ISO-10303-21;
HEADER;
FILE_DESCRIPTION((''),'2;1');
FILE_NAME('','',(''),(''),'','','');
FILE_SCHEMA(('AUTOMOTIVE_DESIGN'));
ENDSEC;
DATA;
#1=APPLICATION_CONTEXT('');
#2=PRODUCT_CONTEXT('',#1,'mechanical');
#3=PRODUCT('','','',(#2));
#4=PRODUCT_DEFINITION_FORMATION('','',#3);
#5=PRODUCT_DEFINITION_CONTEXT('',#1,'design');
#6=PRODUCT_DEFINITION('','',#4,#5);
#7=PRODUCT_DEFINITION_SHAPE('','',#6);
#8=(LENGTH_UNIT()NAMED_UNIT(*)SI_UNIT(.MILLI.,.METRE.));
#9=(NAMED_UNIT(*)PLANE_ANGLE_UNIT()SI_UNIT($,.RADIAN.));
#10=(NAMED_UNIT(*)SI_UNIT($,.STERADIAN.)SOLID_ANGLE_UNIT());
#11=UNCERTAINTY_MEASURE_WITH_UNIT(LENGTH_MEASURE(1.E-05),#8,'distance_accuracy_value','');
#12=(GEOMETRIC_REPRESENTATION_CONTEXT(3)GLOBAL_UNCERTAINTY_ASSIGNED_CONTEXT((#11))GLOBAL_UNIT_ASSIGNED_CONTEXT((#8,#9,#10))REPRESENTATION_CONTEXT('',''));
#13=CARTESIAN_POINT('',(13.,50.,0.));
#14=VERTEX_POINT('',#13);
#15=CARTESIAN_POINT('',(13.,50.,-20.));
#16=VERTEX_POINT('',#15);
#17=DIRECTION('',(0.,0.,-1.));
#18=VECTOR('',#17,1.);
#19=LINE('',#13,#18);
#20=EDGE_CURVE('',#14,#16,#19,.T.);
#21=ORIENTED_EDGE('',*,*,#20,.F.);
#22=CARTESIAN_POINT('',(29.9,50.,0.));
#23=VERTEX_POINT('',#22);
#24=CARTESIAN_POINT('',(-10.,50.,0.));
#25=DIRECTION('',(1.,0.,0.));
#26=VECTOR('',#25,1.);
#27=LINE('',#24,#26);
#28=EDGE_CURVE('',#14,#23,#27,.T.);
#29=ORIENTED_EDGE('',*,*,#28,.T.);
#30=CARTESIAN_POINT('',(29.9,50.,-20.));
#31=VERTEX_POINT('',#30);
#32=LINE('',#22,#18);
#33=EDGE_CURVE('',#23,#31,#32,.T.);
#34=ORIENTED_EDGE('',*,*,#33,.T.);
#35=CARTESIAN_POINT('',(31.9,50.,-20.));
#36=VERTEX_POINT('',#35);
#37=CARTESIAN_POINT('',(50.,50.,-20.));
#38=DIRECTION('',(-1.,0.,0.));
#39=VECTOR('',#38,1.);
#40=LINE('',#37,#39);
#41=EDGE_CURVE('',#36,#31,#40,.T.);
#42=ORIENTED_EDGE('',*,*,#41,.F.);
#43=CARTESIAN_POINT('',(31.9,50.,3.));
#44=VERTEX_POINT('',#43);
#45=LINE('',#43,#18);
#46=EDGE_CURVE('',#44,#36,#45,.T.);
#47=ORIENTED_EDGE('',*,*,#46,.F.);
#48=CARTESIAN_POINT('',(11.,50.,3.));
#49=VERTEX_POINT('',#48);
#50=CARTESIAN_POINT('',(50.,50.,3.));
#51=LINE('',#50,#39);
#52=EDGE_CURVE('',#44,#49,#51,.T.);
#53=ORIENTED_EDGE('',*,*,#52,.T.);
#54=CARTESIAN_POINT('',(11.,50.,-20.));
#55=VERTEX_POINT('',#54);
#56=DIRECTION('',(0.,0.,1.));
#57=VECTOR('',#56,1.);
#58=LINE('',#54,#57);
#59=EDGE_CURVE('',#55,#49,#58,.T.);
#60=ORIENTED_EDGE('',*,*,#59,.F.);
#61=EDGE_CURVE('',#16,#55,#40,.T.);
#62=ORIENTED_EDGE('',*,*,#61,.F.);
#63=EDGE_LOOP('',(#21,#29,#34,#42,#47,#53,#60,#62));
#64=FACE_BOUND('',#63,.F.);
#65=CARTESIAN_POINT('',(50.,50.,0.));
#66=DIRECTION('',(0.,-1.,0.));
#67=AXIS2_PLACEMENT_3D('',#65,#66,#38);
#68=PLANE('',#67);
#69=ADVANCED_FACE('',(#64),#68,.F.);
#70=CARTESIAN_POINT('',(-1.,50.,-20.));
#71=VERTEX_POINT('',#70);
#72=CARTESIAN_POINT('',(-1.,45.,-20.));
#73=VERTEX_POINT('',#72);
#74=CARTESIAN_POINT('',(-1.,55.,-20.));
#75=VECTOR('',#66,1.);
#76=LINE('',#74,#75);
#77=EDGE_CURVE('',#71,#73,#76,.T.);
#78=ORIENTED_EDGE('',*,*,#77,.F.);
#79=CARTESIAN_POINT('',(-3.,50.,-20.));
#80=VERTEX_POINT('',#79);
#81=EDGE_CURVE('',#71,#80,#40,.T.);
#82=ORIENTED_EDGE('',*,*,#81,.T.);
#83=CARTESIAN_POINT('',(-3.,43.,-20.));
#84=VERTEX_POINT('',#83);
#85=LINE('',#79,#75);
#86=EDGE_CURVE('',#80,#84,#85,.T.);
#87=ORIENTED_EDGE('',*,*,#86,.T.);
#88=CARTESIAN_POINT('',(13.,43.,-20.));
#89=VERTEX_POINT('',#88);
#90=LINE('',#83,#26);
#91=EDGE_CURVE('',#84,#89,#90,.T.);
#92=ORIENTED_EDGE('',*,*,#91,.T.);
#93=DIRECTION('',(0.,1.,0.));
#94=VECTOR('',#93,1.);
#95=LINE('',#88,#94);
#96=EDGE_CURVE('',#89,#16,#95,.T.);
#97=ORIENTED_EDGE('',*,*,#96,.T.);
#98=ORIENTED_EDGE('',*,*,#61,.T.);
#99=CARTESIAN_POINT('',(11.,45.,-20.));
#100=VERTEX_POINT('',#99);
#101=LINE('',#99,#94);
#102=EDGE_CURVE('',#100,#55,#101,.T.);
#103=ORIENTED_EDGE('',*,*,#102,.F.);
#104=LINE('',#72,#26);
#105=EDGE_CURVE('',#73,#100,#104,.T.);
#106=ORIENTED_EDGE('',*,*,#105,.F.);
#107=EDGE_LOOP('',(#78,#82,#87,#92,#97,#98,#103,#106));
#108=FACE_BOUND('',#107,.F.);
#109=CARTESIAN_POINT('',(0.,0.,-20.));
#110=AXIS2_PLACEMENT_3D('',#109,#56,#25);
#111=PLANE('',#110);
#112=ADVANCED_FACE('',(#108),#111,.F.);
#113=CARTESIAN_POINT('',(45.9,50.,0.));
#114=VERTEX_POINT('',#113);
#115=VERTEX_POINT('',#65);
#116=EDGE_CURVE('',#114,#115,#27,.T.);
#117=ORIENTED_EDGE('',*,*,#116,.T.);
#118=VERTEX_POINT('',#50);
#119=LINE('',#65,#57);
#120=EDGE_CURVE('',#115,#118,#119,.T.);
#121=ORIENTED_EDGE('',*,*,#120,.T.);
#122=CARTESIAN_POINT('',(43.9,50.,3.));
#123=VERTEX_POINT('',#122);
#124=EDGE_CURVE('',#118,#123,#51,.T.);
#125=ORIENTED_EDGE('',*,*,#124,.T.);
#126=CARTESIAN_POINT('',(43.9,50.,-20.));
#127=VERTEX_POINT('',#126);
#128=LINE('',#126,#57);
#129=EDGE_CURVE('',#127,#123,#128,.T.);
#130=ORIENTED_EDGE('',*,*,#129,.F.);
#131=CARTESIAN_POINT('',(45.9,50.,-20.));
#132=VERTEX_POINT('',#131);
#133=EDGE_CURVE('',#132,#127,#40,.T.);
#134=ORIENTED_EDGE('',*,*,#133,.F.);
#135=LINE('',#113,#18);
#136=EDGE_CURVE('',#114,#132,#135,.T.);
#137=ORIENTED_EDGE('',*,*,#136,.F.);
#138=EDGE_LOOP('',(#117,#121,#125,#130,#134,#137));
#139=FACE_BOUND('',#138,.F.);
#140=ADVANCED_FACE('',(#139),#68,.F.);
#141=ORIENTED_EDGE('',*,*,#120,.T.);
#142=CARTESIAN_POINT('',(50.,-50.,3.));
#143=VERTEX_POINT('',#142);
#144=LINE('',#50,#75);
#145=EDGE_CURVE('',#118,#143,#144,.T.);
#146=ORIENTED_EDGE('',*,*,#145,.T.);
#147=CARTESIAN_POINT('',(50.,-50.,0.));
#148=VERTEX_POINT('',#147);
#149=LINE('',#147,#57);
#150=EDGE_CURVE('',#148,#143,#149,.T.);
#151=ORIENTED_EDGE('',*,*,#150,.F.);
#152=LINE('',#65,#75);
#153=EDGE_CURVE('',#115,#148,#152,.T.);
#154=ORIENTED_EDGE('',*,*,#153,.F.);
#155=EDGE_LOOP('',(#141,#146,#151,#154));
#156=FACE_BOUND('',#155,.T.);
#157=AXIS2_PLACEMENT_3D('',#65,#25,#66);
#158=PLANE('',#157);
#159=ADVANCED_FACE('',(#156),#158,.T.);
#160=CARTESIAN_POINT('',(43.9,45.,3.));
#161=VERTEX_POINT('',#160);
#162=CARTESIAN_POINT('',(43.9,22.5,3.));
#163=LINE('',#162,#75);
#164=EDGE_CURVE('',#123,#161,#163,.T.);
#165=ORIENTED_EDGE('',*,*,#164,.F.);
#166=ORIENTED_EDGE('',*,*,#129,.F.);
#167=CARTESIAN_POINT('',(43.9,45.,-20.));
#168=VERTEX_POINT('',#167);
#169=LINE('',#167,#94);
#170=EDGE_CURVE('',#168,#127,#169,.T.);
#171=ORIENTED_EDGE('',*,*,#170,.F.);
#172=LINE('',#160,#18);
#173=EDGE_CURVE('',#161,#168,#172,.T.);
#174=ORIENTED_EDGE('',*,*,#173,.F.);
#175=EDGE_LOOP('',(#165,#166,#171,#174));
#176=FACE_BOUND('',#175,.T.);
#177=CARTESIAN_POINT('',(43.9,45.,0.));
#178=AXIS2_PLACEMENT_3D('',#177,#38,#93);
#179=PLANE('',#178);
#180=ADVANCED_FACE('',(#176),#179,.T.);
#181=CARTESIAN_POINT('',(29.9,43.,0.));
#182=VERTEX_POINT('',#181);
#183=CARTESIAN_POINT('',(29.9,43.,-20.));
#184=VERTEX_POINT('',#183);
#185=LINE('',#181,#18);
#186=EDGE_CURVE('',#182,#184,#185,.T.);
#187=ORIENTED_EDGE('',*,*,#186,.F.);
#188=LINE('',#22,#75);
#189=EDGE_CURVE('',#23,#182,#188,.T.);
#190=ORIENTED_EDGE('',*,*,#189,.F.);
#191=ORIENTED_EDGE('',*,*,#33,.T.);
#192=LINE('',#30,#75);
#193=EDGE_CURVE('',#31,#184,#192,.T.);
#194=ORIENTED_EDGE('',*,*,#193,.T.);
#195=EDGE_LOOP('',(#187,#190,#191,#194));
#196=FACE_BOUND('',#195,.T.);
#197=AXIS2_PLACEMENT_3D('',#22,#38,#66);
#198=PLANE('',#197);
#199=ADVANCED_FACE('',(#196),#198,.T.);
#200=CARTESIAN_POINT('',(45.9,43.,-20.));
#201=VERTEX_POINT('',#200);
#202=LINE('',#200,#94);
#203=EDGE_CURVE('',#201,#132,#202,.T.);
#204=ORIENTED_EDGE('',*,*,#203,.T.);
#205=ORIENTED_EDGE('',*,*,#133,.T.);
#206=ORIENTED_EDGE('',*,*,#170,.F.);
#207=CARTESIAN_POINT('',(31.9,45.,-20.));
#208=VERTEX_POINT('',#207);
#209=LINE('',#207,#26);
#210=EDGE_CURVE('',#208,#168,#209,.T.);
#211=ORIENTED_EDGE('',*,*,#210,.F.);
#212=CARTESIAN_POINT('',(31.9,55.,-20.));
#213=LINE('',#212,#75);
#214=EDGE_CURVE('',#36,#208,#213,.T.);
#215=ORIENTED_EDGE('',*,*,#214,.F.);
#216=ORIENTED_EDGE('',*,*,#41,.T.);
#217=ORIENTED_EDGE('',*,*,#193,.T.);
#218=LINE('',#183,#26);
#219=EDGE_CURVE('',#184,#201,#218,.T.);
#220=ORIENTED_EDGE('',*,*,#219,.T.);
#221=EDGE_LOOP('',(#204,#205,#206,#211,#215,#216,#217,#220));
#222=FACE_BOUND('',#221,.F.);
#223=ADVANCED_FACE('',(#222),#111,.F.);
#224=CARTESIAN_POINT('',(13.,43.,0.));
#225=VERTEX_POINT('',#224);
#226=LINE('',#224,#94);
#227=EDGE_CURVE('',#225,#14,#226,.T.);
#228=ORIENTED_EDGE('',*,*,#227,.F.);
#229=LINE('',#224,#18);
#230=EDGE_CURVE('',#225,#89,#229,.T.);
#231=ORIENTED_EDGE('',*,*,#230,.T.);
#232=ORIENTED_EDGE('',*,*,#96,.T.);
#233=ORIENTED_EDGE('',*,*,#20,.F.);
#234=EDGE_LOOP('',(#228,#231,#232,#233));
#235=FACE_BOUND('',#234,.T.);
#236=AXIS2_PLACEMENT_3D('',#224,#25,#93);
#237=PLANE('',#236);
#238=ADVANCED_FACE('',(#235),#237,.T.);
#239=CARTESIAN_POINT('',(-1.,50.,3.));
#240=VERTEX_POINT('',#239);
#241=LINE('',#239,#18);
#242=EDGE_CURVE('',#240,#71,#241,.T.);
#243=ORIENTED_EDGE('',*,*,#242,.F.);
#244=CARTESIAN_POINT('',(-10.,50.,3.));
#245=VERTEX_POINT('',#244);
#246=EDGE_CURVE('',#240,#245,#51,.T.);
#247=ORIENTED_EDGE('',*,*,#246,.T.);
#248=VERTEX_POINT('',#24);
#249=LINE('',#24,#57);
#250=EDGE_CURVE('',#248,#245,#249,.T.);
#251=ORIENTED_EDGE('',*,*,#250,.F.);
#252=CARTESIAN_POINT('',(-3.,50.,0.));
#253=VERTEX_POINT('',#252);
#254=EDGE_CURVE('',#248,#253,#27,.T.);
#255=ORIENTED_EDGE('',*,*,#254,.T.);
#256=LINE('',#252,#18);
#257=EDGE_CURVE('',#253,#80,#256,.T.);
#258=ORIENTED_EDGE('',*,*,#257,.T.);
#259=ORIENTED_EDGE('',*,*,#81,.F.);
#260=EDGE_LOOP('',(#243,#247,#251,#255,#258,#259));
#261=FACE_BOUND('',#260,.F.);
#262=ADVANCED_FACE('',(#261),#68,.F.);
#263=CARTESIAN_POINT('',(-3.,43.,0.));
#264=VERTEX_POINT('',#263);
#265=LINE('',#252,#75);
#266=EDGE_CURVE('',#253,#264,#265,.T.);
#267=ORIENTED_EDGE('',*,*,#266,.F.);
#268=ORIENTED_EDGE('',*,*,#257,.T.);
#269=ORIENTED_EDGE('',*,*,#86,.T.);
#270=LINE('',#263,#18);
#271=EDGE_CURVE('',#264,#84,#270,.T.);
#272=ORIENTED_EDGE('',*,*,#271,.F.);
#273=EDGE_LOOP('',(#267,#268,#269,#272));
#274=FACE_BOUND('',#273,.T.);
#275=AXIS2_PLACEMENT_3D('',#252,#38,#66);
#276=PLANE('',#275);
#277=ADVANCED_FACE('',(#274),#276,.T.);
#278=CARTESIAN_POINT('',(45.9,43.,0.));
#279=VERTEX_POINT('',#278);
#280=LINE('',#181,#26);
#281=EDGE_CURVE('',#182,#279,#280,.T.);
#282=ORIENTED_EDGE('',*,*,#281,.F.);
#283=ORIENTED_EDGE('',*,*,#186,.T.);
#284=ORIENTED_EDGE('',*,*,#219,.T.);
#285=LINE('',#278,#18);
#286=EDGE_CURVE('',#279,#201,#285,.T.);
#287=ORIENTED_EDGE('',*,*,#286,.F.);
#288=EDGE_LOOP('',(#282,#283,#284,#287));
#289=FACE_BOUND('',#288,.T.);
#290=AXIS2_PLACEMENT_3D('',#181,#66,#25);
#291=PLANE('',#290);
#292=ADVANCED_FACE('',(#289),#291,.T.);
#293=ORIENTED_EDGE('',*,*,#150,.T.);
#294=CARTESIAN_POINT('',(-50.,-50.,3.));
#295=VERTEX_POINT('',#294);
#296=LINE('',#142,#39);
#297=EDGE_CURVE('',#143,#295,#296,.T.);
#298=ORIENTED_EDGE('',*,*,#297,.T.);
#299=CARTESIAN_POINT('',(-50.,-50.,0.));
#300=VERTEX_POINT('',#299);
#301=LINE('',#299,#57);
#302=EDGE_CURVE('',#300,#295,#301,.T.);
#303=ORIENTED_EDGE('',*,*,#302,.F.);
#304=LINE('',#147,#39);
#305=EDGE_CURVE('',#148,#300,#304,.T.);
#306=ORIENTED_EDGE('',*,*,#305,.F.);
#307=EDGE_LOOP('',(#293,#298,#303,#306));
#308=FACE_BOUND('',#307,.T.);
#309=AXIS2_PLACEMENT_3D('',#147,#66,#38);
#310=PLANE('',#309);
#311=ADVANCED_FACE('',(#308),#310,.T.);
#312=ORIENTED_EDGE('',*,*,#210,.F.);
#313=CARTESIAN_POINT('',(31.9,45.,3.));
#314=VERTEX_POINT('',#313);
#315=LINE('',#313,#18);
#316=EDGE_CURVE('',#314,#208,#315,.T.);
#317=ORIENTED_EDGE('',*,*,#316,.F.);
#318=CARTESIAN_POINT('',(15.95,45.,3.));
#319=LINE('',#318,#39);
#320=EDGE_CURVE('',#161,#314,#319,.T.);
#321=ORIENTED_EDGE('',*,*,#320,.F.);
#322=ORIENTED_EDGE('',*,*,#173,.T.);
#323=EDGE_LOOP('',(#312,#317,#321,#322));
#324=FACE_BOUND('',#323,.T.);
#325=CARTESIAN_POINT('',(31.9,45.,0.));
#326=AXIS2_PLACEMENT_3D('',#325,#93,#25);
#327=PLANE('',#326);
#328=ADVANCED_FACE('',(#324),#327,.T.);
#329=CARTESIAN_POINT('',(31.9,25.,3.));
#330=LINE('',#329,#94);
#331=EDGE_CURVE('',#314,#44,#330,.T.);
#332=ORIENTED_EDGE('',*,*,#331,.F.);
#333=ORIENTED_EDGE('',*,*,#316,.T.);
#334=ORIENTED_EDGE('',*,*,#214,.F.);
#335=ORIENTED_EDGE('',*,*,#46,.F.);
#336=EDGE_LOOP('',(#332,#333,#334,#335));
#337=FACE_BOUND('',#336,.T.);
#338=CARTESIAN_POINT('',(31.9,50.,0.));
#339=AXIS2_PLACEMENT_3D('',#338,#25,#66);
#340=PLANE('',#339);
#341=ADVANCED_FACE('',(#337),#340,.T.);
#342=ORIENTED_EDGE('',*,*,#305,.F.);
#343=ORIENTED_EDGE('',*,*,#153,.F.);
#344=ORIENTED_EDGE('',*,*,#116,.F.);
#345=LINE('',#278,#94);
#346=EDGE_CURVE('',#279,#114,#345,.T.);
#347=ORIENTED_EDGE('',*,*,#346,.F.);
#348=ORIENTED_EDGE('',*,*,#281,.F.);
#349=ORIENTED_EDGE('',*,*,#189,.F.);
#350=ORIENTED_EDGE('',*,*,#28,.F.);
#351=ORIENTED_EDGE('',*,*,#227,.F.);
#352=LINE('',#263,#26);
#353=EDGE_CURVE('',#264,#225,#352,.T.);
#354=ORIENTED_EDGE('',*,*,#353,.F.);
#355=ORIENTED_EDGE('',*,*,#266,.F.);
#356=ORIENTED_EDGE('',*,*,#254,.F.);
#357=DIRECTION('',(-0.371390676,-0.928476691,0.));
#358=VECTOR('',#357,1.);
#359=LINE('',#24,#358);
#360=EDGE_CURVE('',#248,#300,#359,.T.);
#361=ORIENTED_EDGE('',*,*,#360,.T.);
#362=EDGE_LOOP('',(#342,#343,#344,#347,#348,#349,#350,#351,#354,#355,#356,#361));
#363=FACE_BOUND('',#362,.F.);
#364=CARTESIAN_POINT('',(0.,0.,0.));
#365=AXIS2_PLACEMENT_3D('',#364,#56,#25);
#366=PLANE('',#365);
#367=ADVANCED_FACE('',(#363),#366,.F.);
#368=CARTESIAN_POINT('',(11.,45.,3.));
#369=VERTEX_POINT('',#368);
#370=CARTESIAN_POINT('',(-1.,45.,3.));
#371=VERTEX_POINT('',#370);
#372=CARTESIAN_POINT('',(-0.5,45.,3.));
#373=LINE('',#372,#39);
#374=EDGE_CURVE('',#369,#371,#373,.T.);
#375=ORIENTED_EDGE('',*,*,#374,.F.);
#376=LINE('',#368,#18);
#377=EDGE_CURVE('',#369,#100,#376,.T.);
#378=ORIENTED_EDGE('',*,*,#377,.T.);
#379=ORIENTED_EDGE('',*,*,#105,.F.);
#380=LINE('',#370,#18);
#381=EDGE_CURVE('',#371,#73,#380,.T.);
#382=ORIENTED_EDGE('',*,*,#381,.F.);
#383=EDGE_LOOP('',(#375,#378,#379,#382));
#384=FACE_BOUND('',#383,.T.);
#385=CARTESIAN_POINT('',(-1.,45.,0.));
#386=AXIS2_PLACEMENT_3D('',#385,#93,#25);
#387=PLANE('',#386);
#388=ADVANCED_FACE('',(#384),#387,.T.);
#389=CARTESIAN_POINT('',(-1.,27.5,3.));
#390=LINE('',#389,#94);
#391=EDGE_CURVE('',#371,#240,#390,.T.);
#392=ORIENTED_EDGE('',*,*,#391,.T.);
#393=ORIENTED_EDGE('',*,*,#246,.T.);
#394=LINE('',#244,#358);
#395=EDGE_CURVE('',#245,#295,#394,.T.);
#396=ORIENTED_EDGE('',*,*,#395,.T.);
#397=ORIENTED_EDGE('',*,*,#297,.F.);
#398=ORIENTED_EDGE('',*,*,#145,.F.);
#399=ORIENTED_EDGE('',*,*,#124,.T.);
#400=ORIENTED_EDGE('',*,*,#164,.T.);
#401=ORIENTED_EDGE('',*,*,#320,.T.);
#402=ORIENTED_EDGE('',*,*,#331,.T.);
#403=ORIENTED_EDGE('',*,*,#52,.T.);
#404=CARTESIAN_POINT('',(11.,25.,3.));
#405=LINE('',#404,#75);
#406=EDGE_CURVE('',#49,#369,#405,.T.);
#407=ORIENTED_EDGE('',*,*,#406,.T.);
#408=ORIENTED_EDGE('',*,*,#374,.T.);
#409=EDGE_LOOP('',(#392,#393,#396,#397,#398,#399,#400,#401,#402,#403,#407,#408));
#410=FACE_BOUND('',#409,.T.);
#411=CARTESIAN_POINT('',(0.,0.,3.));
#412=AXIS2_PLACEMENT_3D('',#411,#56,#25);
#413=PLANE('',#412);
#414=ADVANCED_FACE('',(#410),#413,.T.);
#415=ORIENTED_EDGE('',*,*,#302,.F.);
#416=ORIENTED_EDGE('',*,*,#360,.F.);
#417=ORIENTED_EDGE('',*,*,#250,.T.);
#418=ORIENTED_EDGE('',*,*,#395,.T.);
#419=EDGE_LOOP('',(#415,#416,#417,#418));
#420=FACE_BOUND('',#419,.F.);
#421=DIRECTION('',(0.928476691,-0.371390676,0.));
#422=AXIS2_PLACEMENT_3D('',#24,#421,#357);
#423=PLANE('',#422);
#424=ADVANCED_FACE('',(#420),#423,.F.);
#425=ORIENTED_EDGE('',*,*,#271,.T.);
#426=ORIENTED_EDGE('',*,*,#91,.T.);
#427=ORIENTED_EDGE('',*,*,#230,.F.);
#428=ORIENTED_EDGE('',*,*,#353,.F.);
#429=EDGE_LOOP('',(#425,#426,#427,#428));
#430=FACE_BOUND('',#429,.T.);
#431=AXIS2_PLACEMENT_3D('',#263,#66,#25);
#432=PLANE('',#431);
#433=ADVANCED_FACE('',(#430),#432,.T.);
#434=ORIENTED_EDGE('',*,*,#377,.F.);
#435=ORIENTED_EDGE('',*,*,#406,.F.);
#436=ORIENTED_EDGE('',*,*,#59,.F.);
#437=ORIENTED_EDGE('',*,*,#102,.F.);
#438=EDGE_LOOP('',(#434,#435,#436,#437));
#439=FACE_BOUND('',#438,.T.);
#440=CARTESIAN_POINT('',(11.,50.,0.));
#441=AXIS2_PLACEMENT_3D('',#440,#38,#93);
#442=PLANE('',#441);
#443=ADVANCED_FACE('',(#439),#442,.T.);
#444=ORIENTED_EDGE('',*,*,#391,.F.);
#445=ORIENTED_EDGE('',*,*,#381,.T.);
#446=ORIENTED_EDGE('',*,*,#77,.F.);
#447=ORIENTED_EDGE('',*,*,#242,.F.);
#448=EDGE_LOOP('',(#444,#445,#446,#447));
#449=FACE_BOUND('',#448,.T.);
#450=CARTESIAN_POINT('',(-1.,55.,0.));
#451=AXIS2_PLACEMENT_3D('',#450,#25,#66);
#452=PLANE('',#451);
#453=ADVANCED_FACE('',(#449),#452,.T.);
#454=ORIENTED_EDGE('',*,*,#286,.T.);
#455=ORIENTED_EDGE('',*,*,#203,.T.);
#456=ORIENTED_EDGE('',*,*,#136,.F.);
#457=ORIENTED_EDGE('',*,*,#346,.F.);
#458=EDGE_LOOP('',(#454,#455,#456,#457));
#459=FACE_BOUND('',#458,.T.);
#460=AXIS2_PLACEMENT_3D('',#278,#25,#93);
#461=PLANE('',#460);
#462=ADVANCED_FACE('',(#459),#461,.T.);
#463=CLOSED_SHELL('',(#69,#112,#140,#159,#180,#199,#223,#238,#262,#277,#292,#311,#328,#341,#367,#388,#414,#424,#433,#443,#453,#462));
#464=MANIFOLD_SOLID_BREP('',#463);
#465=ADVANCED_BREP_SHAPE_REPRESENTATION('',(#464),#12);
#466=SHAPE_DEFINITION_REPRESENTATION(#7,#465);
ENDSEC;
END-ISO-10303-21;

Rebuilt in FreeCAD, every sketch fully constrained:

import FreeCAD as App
import Part
import Sketcher
Q = App.Units.Quantity


def add_polygon(sketch, points):
    """Adds a closed chain of lines whose ends are joined by coincident constraints."""
    first, n = sketch.GeometryCount, len(points)
    for a, b in zip(points, points[1:] + points[:1]):
        sketch.addGeometry(Part.LineSegment(App.Vector(*a, 0), App.Vector(*b, 0)), False)
    for i in range(n):
        sketch.addConstraint(Sketcher.Constraint("Coincident", first + i, 2, first + (i + 1) % n, 1))

doc = App.newDocument("Part")
body = doc.addObject("PartDesign::Body", "Body")

# Sketch on XY plane
sketch1 = body.newObject("Sketcher::SketchObject", "Sketch")
sketch1.AttachmentSupport = (doc.getObject("XY_Plane"), [""])
sketch1.MapMode = "FlatFace"
add_polygon(sketch1, [(-50, -50), (50, -50), (50, 50), (-10, 50)])  # lines 0-3
sketch1.addConstraint([
    Sketcher.Constraint("Horizontal", 0),
    Sketcher.Constraint("Vertical", 1),
    Sketcher.Constraint("Horizontal", 2),
    Sketcher.Constraint("Symmetric", 1, 2, 3, 2, -1, 1),
    Sketcher.Constraint("Equal", 0, 1),
    Sketcher.Constraint("DistanceX", 0, 1, 0, 2, Q("100 mm")),
    Sketcher.Constraint("DistanceX", 2, 2, 2, 1, Q("60 mm")),
])
pad1 = body.newObject("PartDesign::Pad", "Pad")
pad1.Profile = sketch1
pad1.Length = 3

# Sketch on XY plane
sketch2 = body.newObject("Sketcher::SketchObject", "Sketch001")
sketch2.AttachmentSupport = (doc.getObject("XY_Plane"), [""])
sketch2.MapMode = "FlatFace"
add_polygon(sketch2, [(-1, 55), (-1, 45), (11, 45), (11, 55)])  # lines 0-3
sketch2.addConstraint([
    Sketcher.Constraint("Vertical", 0),
    Sketcher.Constraint("Horizontal", 1),
    Sketcher.Constraint("Vertical", 2),
    Sketcher.Constraint("Horizontal", 3),
    Sketcher.Constraint("DistanceX", 1, 1, 1, 2, Q("12 mm")),
    Sketcher.Constraint("DistanceY", 0, 2, 0, 1, Q("10 mm")),
    Sketcher.Constraint("DistanceX", 0, 2, -1, 1, Q("1 mm")),
    Sketcher.Constraint("DistanceY", -1, 1, 0, 2, Q("45 mm")),
])
pocket1 = body.newObject("PartDesign::Pocket", "Pocket")
pocket1.Profile = sketch2
pocket1.Length = 10
pocket1.Reversed = True

# Sketch on XY plane
sketch3 = body.newObject("Sketcher::SketchObject", "Sketch002")
sketch3.AttachmentSupport = (doc.getObject("XY_Plane"), [""])
sketch3.MapMode = "FlatFace"
add_polygon(sketch3, [(43.9, 45), (43.9, 55), (31.9, 55), (31.9, 45)])  # lines 0-3
sketch3.addConstraint([
    Sketcher.Constraint("Vertical", 0),
    Sketcher.Constraint("Horizontal", 1),
    Sketcher.Constraint("Vertical", 2),
    Sketcher.Constraint("Horizontal", 3),
    Sketcher.Constraint("DistanceX", 1, 2, 1, 1, Q("12 mm")),
    Sketcher.Constraint("DistanceY", 0, 1, 0, 2, Q("10 mm")),
    Sketcher.Constraint("DistanceY", -1, 1, 0, 2, Q("55 mm")),
    Sketcher.Constraint("DistanceX", -1, 1, 0, 2, Q("43.9 mm")),
])
pocket2 = body.newObject("PartDesign::Pocket", "Pocket001")
pocket2.Profile = sketch3
pocket2.Length = 10
pocket2.Reversed = True

# Sketch on XY plane
sketch4 = body.newObject("Sketcher::SketchObject", "Sketch003")
sketch4.AttachmentSupport = (doc.getObject("XY_Plane"), [""])
sketch4.MapMode = "FlatFace"
add_polygon(sketch4, [(45.9, 43), (45.9, 50), (43.9, 50), (43.9, 45), (31.9, 45), (31.9, 50), (29.9, 50), (29.9, 43)])  # lines 0-7
add_polygon(sketch4, [(-1, 50), (-3, 50), (-3, 43), (13, 43), (13, 50), (11, 50), (11, 45), (-1, 45)])  # lines 8-15
sketch4.addConstraint([
    Sketcher.Constraint("Vertical", 0),
    Sketcher.Constraint("Horizontal", 1),
    Sketcher.Constraint("Vertical", 2),
    Sketcher.Constraint("Horizontal", 3),
    Sketcher.Constraint("Vertical", 4),
    Sketcher.Constraint("Horizontal", 5),
    Sketcher.Constraint("Vertical", 6),
    Sketcher.Constraint("Horizontal", 7),
    Sketcher.Constraint("Horizontal", 8),
    Sketcher.Constraint("Vertical", 9),
    Sketcher.Constraint("Horizontal", 10),
    Sketcher.Constraint("Vertical", 11),
    Sketcher.Constraint("Horizontal", 12),
    Sketcher.Constraint("Vertical", 13),
    Sketcher.Constraint("Horizontal", 14),
    Sketcher.Constraint("Vertical", 15),
    Sketcher.Constraint("Horizontal", 1, 2, 4, 2),
    Sketcher.Constraint("Horizontal", 5, 2, 8, 2),
    Sketcher.Constraint("Horizontal", 7, 2, 9, 2),
    Sketcher.Constraint("Horizontal", 8, 2, 11, 2),
    Sketcher.Constraint("Horizontal", 3, 2, 13, 2),
    Sketcher.Constraint("Equal", 1, 5),
    Sketcher.Constraint("Equal", 5, 8),
    Sketcher.Constraint("Equal", 7, 10),
    Sketcher.Constraint("Equal", 8, 12),
    Sketcher.Constraint("DistanceX", 1, 2, 1, 1, Q("2 mm")),
    Sketcher.Constraint("DistanceX", 3, 2, 3, 1, Q("12 mm")),
    Sketcher.Constraint("DistanceY", -1, 1, 0, 2, Q("50 mm")),
    Sketcher.Constraint("DistanceY", 6, 2, 3, 2, Q("2 mm")),
    Sketcher.Constraint("DistanceY", 0, 1, 0, 2, Q("7 mm")),
    Sketcher.Constraint("DistanceX", 8, 2, -1, 1, Q("3 mm")),
    Sketcher.Constraint("DistanceX", -1, 1, 0, 2, Q("45.9 mm")),
])
pad2 = body.newObject("PartDesign::Pad", "Pad001")
pad2.Profile = sketch4
pad2.Length = 20
pad2.Reversed = True

doc.recompute()
